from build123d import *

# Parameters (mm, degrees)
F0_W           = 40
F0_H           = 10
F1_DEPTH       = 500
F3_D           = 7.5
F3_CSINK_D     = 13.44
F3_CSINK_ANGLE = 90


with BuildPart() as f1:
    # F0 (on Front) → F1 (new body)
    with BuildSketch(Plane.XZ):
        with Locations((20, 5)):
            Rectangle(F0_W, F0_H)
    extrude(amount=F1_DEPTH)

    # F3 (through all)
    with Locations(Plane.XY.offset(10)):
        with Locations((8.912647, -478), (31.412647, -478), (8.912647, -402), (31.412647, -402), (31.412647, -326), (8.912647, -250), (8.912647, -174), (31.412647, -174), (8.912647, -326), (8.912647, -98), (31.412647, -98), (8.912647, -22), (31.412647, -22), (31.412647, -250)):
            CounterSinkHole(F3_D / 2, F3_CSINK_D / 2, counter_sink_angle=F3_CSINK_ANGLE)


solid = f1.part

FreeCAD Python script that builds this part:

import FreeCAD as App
import Part
import Sketcher

V = App.Vector

doc = App.newDocument("Part")
body = doc.addObject("PartDesign::Body", "Body")

sketch1 = doc.addObject("Sketcher::SketchObject", "Sketch")
body.addObject(sketch1)
sketch1.AttachmentSupport = (doc.XZ_Plane, [""])
sketch1.MapMode = "FlatFace"
sketch1.addGeometry(Part.LineSegment(V(0, 10, 0), V(0, 0, 0)), False)
sketch1.addGeometry(Part.LineSegment(V(0, 0, 0), V(40, 0, 0)), False)
sketch1.addGeometry(Part.LineSegment(V(40, 0, 0), V(40, 10, 0)), False)
sketch1.addGeometry(Part.LineSegment(V(40, 10, 0), V(0, 10, 0)), False)
sketch1.addConstraint(Sketcher.Constraint("Coincident", 0, 2, 1, 1))
sketch1.addConstraint(Sketcher.Constraint("Coincident", 1, 2, 2, 1))
sketch1.addConstraint(Sketcher.Constraint("Coincident", 2, 2, 3, 1))
sketch1.addConstraint(Sketcher.Constraint("Coincident", 3, 2, 0, 1))
sketch1.addConstraint(Sketcher.Constraint("Vertical", 0))
sketch1.addConstraint(Sketcher.Constraint("Horizontal", 1))
sketch1.addConstraint(Sketcher.Constraint("Vertical", 2))
sketch1.addConstraint(Sketcher.Constraint("Horizontal", 3))
sketch1.addConstraint(Sketcher.Constraint("Coincident", 0, 2, -1, 1))
sketch1.addConstraint(Sketcher.Constraint("DistanceX", 1, 1, 1, 2, 40.0))
sketch1.addConstraint(Sketcher.Constraint("DistanceY", 0, 2, 0, 1, 10.0))
pad1 = doc.addObject("PartDesign::Pad", "Pad")
body.addObject(pad1)
pad1.Profile = sketch1
pad1.Length = 500

sketch2 = doc.addObject("Sketcher::SketchObject", "Sketch001")
body.addObject(sketch2)
sketch2.AttachmentSupport = (doc.XY_Plane, [""])
sketch2.MapMode = "FlatFace"
sketch2.AttachmentOffset = App.Placement(V(0, 0, 10), App.Rotation())
sketch2.addGeometry(Part.Circle(V(8.912647, -478, 0), V(0, 0, 1), 3.75), False)
sketch2.addGeometry(Part.Circle(V(31.412647, -478, 0), V(0, 0, 1), 3.75), False)
sketch2.addGeometry(Part.Circle(V(8.912647, -402, 0), V(0, 0, 1), 3.75), False)
sketch2.addGeometry(Part.Circle(V(31.412647, -402, 0), V(0, 0, 1), 3.75), False)
sketch2.addGeometry(Part.Circle(V(31.412647, -326, 0), V(0, 0, 1), 3.75), False)
sketch2.addGeometry(Part.Circle(V(8.912647, -250, 0), V(0, 0, 1), 3.75), False)
sketch2.addGeometry(Part.Circle(V(8.912647, -174, 0), V(0, 0, 1), 3.75), False)
sketch2.addGeometry(Part.Circle(V(31.412647, -174, 0), V(0, 0, 1), 3.75), False)
sketch2.addGeometry(Part.Circle(V(8.912647, -326, 0), V(0, 0, 1), 3.75), False)
sketch2.addGeometry(Part.Circle(V(8.912647, -98, 0), V(0, 0, 1), 3.75), False)
sketch2.addGeometry(Part.Circle(V(31.412647, -98, 0), V(0, 0, 1), 3.75), False)
sketch2.addGeometry(Part.Circle(V(8.912647, -22, 0), V(0, 0, 1), 3.75), False)
sketch2.addGeometry(Part.Circle(V(31.412647, -22, 0), V(0, 0, 1), 3.75), False)
sketch2.addGeometry(Part.Circle(V(31.412647, -250, 0), V(0, 0, 1), 3.75), False)
sketch2.addConstraint(Sketcher.Constraint("Equal", 0, 1))
sketch2.addConstraint(Sketcher.Constraint("Equal", 1, 2))
sketch2.addConstraint(Sketcher.Constraint("Equal", 2, 3))
sketch2.addConstraint(Sketcher.Constraint("Equal", 3, 4))
sketch2.addConstraint(Sketcher.Constraint("Equal", 4, 5))
sketch2.addConstraint(Sketcher.Constraint("Equal", 5, 6))
sketch2.addConstraint(Sketcher.Constraint("Equal", 6, 7))
sketch2.addConstraint(Sketcher.Constraint("Equal", 7, 8))
sketch2.addConstraint(Sketcher.Constraint("Equal", 8, 9))
sketch2.addConstraint(Sketcher.Constraint("Equal", 9, 10))
sketch2.addConstraint(Sketcher.Constraint("Equal", 10, 11))
sketch2.addConstraint(Sketcher.Constraint("Equal", 11, 12))
sketch2.addConstraint(Sketcher.Constraint("Equal", 12, 13))
sketch2.addConstraint(Sketcher.Constraint("Horizontal", 0, 3, 1, 3))
sketch2.addConstraint(Sketcher.Constraint("Horizontal", 2, 3, 3, 3))
sketch2.addConstraint(Sketcher.Constraint("Horizontal", 6, 3, 7, 3))
sketch2.addConstraint(Sketcher.Constraint("Horizontal", 4, 3, 8, 3))
sketch2.addConstraint(Sketcher.Constraint("Horizontal", 9, 3, 10, 3))
sketch2.addConstraint(Sketcher.Constraint("Horizontal", 11, 3, 12, 3))
sketch2.addConstraint(Sketcher.Constraint("Horizontal", 5, 3, 13, 3))
sketch2.addConstraint(Sketcher.Constraint("Vertical", 0, 3, 2, 3))
sketch2.addConstraint(Sketcher.Constraint("Vertical", 1, 3, 3, 3))
sketch2.addConstraint(Sketcher.Constraint("Vertical", 3, 3, 4, 3))
sketch2.addConstraint(Sketcher.Constraint("Vertical", 2, 3, 5, 3))
sketch2.addConstraint(Sketcher.Constraint("Vertical", 5, 3, 6, 3))
sketch2.addConstraint(Sketcher.Constraint("Vertical", 4, 3, 7, 3))
sketch2.addConstraint(Sketcher.Constraint("Vertical", 6, 3, 8, 3))
sketch2.addConstraint(Sketcher.Constraint("Vertical", 8, 3, 9, 3))
sketch2.addConstraint(Sketcher.Constraint("Vertical", 7, 3, 10, 3))
sketch2.addConstraint(Sketcher.Constraint("Vertical", 9, 3, 11, 3))
sketch2.addConstraint(Sketcher.Constraint("Vertical", 10, 3, 12, 3))
sketch2.addConstraint(Sketcher.Constraint("Vertical", 12, 3, 13, 3))
sketch2.addConstraint(Sketcher.Constraint("Diameter", 0, 7.5))
sketch2.addConstraint(Sketcher.Constraint("DistanceY", 0, 3, -1, 1, 478.0))
sketch2.addConstraint(Sketcher.Constraint("DistanceY", 2, 3, -1, 1, 402.0))
sketch2.addConstraint(Sketcher.Constraint("DistanceY", 4, 3, -1, 1, 326.0))
sketch2.addConstraint(Sketcher.Constraint("DistanceY", 5, 3, -1, 1, 250.0))
sketch2.addConstraint(Sketcher.Constraint("DistanceY", 6, 3, -1, 1, 174.0))
sketch2.addConstraint(Sketcher.Constraint("DistanceY", 9, 3, -1, 1, 98.0))
sketch2.addConstraint(Sketcher.Constraint("DistanceY", 11, 3, -1, 1, 22.0))
sketch2.addConstraint(Sketcher.Constraint("DistanceX", 0, 3, 1, 3, 22.5))
sketch2.addConstraint(Sketcher.Constraint("DistanceX", -1, 1, 0, 3, 8.912647))
doc.recompute()
hole = doc.addObject("PartDesign::Hole", "Hole")
body.addObject(hole)
hole.Profile = sketch2
hole.ThreadType = "None"
hole.Diameter = 7.5
hole.DepthType = "ThroughAll"
hole.HoleCutType = "Countersink"
hole.HoleCutDiameter = 13.44
hole.HoleCutCountersinkAngle = 90

doc.recompute()
